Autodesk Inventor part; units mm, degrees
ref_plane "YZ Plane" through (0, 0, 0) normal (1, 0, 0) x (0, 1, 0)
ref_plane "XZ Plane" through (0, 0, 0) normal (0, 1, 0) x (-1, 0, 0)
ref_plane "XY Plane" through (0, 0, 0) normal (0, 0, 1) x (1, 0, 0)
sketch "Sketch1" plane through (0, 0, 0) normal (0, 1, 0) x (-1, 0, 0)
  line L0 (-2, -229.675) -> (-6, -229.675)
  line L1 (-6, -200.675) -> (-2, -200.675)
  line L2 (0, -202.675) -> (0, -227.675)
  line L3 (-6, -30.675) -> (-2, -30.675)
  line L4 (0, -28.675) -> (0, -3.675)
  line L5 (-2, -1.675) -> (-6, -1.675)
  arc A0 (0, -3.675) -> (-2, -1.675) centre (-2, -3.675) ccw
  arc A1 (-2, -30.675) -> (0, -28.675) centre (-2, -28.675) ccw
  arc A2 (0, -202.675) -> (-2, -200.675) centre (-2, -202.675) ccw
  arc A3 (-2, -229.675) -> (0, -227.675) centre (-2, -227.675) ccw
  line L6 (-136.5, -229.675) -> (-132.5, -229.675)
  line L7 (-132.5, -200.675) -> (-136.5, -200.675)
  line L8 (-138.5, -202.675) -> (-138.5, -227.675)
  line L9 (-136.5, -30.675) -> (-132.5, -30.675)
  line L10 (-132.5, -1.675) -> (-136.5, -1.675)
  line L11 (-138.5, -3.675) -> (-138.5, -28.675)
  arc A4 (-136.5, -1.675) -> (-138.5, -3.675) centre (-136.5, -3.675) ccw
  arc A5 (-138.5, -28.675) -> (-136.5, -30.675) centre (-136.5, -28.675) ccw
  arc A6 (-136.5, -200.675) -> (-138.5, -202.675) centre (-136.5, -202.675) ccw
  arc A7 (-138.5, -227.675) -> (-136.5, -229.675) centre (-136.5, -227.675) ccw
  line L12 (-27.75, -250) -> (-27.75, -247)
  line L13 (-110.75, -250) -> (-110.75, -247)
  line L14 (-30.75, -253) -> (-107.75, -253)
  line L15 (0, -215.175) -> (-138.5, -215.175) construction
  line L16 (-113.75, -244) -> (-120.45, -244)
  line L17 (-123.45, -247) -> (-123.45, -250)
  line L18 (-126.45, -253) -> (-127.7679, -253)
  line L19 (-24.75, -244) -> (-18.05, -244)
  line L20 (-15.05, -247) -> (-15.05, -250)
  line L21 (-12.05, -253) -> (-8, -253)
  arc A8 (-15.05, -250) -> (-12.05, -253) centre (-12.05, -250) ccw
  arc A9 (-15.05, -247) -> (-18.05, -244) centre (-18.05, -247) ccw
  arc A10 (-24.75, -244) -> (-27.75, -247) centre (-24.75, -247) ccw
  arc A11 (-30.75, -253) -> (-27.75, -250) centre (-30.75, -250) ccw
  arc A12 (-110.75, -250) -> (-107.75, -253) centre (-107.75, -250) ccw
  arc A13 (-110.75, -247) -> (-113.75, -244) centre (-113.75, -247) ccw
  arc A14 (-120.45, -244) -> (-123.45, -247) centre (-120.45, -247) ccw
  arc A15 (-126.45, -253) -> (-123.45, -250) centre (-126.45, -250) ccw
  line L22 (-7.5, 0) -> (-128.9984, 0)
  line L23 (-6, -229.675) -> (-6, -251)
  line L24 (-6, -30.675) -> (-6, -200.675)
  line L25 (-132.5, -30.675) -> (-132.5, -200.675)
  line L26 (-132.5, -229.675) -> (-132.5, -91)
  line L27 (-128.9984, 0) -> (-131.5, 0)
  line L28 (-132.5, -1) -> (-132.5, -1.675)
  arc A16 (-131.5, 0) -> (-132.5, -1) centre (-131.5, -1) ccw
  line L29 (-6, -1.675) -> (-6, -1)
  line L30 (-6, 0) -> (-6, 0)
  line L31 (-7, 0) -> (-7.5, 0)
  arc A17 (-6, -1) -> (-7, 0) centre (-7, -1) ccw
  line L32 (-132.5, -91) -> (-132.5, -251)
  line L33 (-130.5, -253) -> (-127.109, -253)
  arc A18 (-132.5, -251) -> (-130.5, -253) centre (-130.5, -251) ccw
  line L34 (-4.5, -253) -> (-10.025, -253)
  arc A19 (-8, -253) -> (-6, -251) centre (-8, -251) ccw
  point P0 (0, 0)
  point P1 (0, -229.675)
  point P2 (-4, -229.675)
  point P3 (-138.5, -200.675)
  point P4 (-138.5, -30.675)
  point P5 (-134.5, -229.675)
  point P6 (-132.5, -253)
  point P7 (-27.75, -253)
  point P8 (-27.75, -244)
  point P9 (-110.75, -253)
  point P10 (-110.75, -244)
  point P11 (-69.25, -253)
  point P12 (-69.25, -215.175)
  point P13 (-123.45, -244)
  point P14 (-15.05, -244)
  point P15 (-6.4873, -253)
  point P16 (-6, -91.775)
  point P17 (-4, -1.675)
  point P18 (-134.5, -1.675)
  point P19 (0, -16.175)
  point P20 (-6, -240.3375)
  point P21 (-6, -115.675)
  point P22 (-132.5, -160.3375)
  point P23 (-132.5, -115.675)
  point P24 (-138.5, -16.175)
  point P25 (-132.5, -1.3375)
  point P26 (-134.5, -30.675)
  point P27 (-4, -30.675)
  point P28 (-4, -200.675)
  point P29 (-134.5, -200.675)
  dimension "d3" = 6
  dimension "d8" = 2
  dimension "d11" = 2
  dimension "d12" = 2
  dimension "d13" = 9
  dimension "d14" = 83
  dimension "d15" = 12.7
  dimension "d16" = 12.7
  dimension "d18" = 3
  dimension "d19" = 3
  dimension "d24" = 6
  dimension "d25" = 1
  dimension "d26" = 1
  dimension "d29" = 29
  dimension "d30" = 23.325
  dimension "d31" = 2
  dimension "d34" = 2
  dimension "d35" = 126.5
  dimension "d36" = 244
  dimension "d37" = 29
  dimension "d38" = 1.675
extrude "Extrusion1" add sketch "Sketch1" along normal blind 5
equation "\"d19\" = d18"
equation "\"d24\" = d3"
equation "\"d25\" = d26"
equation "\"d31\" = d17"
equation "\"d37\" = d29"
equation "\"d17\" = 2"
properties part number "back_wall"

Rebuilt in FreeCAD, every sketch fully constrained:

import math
import FreeCAD as App
import Part
import Sketcher
from FreeCAD import Vector
Q = App.Units.Quantity

doc = App.newDocument("Part")
body = doc.addObject("PartDesign::Body", "Body")

# Sketch on XZ plane
sketch1 = body.newObject("Sketcher::SketchObject", "Sketch")
sketch1.AttachmentSupport = (doc.getObject("XZ_Plane"), [""])
sketch1.MapMode = "FlatFace"
sketch1.addGeometry([
    Part.LineSegment(Vector(6, -229.7, 0), Vector(2, -229.7, 0)),  # 0
    Part.ArcOfCircle(Part.Circle(Vector(2, -227.7, 0), Vector(0, 0, 1), 2), math.radians(180), math.radians(270)),  # 1
    Part.LineSegment(Vector(0, -227.7, 0), Vector(0, -202.7, 0)),  # 2
    Part.ArcOfCircle(Part.Circle(Vector(2, -202.7, 0), Vector(0, 0, 1), 2), math.radians(90), math.radians(180)),  # 3
    Part.LineSegment(Vector(2, -200.7, 0), Vector(6, -200.7, 0)),  # 4
    Part.LineSegment(Vector(6, -200.7, 0), Vector(6, -30.7, 0)),  # 5
    Part.LineSegment(Vector(6, -30.7, 0), Vector(2, -30.7, 0)),  # 6
    Part.ArcOfCircle(Part.Circle(Vector(2, -28.7, 0), Vector(0, 0, 1), 2), math.radians(180), math.radians(270)),  # 7
    Part.LineSegment(Vector(0, -28.7, 0), Vector(0, -3.7, 0)),  # 8
    Part.ArcOfCircle(Part.Circle(Vector(2, -3.7, 0), Vector(0, 0, 1), 2), math.radians(90), math.radians(180)),  # 9
    Part.LineSegment(Vector(2, -1.7, 0), Vector(6, -1.7, 0)),  # 10
    Part.LineSegment(Vector(6, -1.7, 0), Vector(6, -1, 0)),  # 11
    Part.ArcOfCircle(Part.Circle(Vector(7, -1, 0), Vector(0, 0, 1), 1), math.radians(90), math.radians(180)),  # 12
    Part.LineSegment(Vector(7, 0, 0), Vector(131.5, 0, 0)),  # 13
    Part.ArcOfCircle(Part.Circle(Vector(131.5, -1, 0), Vector(0, 0, 1), 1), math.radians(0), math.radians(90)),  # 14
    Part.LineSegment(Vector(132.5, -1, 0), Vector(132.5, -1.7, 0)),  # 15
    Part.LineSegment(Vector(132.5, -1.7, 0), Vector(136.5, -1.7, 0)),  # 16
    Part.ArcOfCircle(Part.Circle(Vector(136.5, -3.7, 0), Vector(0, 0, 1), 2), math.radians(0), math.radians(90)),  # 17
    Part.LineSegment(Vector(138.5, -3.7, 0), Vector(138.5, -28.7, 0)),  # 18
    Part.ArcOfCircle(Part.Circle(Vector(136.5, -28.7, 0), Vector(0, 0, 1), 2), math.radians(-90), math.radians(0)),  # 19
    Part.LineSegment(Vector(136.5, -30.7, 0), Vector(132.5, -30.7, 0)),  # 20
    Part.LineSegment(Vector(132.5, -30.7, 0), Vector(132.5, -200.7, 0)),  # 21
    Part.LineSegment(Vector(132.5, -200.7, 0), Vector(136.5, -200.7, 0)),  # 22
    Part.ArcOfCircle(Part.Circle(Vector(136.5, -202.7, 0), Vector(0, 0, 1), 2), math.radians(0), math.radians(90)),  # 23
    Part.LineSegment(Vector(138.5, -202.7, 0), Vector(138.5, -227.7, 0)),  # 24
    Part.ArcOfCircle(Part.Circle(Vector(136.5, -227.7, 0), Vector(0, 0, 1), 2), math.radians(-90), math.radians(0)),  # 25
    Part.LineSegment(Vector(136.5, -229.7, 0), Vector(132.5, -229.7, 0)),  # 26
    Part.LineSegment(Vector(132.5, -229.7, 0), Vector(132.5, -251, 0)),  # 27
    Part.ArcOfCircle(Part.Circle(Vector(130.5, -251, 0), Vector(0, 0, 1), 2), math.radians(-90), math.radians(0)),  # 28
    Part.LineSegment(Vector(130.5, -253, 0), Vector(126.5, -253, 0)),  # 29
    Part.ArcOfCircle(Part.Circle(Vector(126.5, -250, 0), Vector(0, 0, 1), 3), math.radians(180), math.radians(270)),  # 30
    Part.LineSegment(Vector(123.5, -250, 0), Vector(123.5, -247, 0)),  # 31
    Part.ArcOfCircle(Part.Circle(Vector(120.5, -247, 0), Vector(0, 0, 1), 3), math.radians(0), math.radians(90)),  # 32
    Part.LineSegment(Vector(120.5, -244, 0), Vector(113.8, -244, 0)),  # 33
    Part.ArcOfCircle(Part.Circle(Vector(113.8, -247, 0), Vector(0, 0, 1), 3), math.radians(90), math.radians(180)),  # 34
    Part.LineSegment(Vector(110.8, -247, 0), Vector(110.8, -250, 0)),  # 35
    Part.ArcOfCircle(Part.Circle(Vector(107.8, -250, 0), Vector(0, 0, 1), 3), math.radians(-90), math.radians(0)),  # 36
    Part.LineSegment(Vector(107.8, -253, 0), Vector(30.8, -253, 0)),  # 37
    Part.ArcOfCircle(Part.Circle(Vector(30.8, -250, 0), Vector(0, 0, 1), 3), math.radians(180), math.radians(270)),  # 38
    Part.LineSegment(Vector(27.8, -250, 0), Vector(27.8, -247, 0)),  # 39
    Part.ArcOfCircle(Part.Circle(Vector(24.8, -247, 0), Vector(0, 0, 1), 3), math.radians(0), math.radians(90)),  # 40
    Part.LineSegment(Vector(24.8, -244, 0), Vector(18.1, -244, 0)),  # 41
    Part.ArcOfCircle(Part.Circle(Vector(18.1, -247, 0), Vector(0, 0, 1), 3), math.radians(90), math.radians(180)),  # 42
    Part.LineSegment(Vector(15.1, -247, 0), Vector(15.1, -250, 0)),  # 43
    Part.ArcOfCircle(Part.Circle(Vector(12.1, -250, 0), Vector(0, 0, 1), 3), math.radians(-90), math.radians(0)),  # 44
    Part.LineSegment(Vector(12.1, -253, 0), Vector(8, -253, 0)),  # 45
    Part.ArcOfCircle(Part.Circle(Vector(8, -251, 0), Vector(0, 0, 1), 2), math.radians(180), math.radians(270)),  # 46
    Part.LineSegment(Vector(6, -251, 0), Vector(6, -229.7, 0)),  # 47
], False)
sketch1.addConstraint([
    Sketcher.Constraint("Tangent", 0, 2, 1, 2),
    Sketcher.Constraint("Tangent", 1, 1, 2, 1),
    Sketcher.Constraint("Tangent", 2, 2, 3, 2),
    Sketcher.Constraint("Tangent", 3, 1, 4, 1),
    Sketcher.Constraint("Coincident", 4, 2, 5, 1),
    Sketcher.Constraint("Coincident", 5, 2, 6, 1),
    Sketcher.Constraint("Tangent", 6, 2, 7, 2),
    Sketcher.Constraint("Tangent", 7, 1, 8, 1),
    Sketcher.Constraint("Tangent", 8, 2, 9, 2),
    Sketcher.Constraint("Tangent", 9, 1, 10, 1),
    Sketcher.Constraint("Coincident", 10, 2, 11, 1),
    Sketcher.Constraint("Tangent", 11, 2, 12, 2),
    Sketcher.Constraint("Tangent", 12, 1, 13, 1),
    Sketcher.Constraint("Tangent", 13, 2, 14, 2),
    Sketcher.Constraint("Tangent", 14, 1, 15, 1),
    Sketcher.Constraint("Coincident", 15, 2, 16, 1),
    Sketcher.Constraint("Tangent", 16, 2, 17, 2),
    Sketcher.Constraint("Tangent", 17, 1, 18, 1),
    Sketcher.Constraint("Tangent", 18, 2, 19, 2),
    Sketcher.Constraint("Tangent", 19, 1, 20, 1),
    Sketcher.Constraint("Coincident", 20, 2, 21, 1),
    Sketcher.Constraint("Coincident", 21, 2, 22, 1),
    Sketcher.Constraint("Tangent", 22, 2, 23, 2),
    Sketcher.Constraint("Tangent", 23, 1, 24, 1),
    Sketcher.Constraint("Tangent", 24, 2, 25, 2),
    Sketcher.Constraint("Tangent", 25, 1, 26, 1),
    Sketcher.Constraint("Coincident", 26, 2, 27, 1),
    Sketcher.Constraint("Tangent", 27, 2, 28, 2),
    Sketcher.Constraint("Tangent", 28, 1, 29, 1),
    Sketcher.Constraint("Tangent", 29, 2, 30, 2),
    Sketcher.Constraint("Tangent", 30, 1, 31, 1),
    Sketcher.Constraint("Tangent", 31, 2, 32, 1),
    Sketcher.Constraint("Tangent", 32, 2, 33, 1),
    Sketcher.Constraint("Tangent", 33, 2, 34, 1),
    Sketcher.Constraint("Tangent", 34, 2, 35, 1),
    Sketcher.Constraint("Tangent", 35, 2, 36, 2),
    Sketcher.Constraint("Tangent", 36, 1, 37, 1),
    Sketcher.Constraint("Tangent", 37, 2, 38, 2),
    Sketcher.Constraint("Tangent", 38, 1, 39, 1),
    Sketcher.Constraint("Tangent", 39, 2, 40, 1),
    Sketcher.Constraint("Tangent", 40, 2, 41, 1),
    Sketcher.Constraint("Tangent", 41, 2, 42, 1),
    Sketcher.Constraint("Tangent", 42, 2, 43, 1),
    Sketcher.Constraint("Tangent", 43, 2, 44, 2),
    Sketcher.Constraint("Tangent", 44, 1, 45, 1),
    Sketcher.Constraint("Tangent", 45, 2, 46, 2),
    Sketcher.Constraint("Tangent", 46, 1, 47, 1),
    Sketcher.Constraint("Coincident", 47, 2, 0, 1),
    Sketcher.Constraint("Horizontal", 0),
    Sketcher.Constraint("Vertical", 2),
    Sketcher.Constraint("Horizontal", 4),
    Sketcher.Constraint("Vertical", 5),
    Sketcher.Constraint("Horizontal", 6),
    Sketcher.Constraint("Vertical", 8),
    Sketcher.Constraint("Horizontal", 10),
    Sketcher.Constraint("Vertical", 11),
    Sketcher.Constraint("Horizontal", 13),
    Sketcher.Constraint("Vertical", 15),
    Sketcher.Constraint("Horizontal", 16),
    Sketcher.Constraint("Vertical", 18),
    Sketcher.Constraint("Horizontal", 20),
    Sketcher.Constraint("Vertical", 21),
    Sketcher.Constraint("Horizontal", 22),
    Sketcher.Constraint("Vertical", 24),
    Sketcher.Constraint("Horizontal", 26),
    Sketcher.Constraint("Vertical", 27),
    Sketcher.Constraint("Horizontal", 29),
    Sketcher.Constraint("Vertical", 31),
    Sketcher.Constraint("Horizontal", 33),
    Sketcher.Constraint("Vertical", 35),
    Sketcher.Constraint("Horizontal", 37),
    Sketcher.Constraint("Vertical", 39),
    Sketcher.Constraint("Horizontal", 41),
    Sketcher.Constraint("Vertical", 43),
    Sketcher.Constraint("Horizontal", 45),
    Sketcher.Constraint("Vertical", 47),
    Sketcher.Constraint("Equal", 1, 3),
    Sketcher.Constraint("Equal", 3, 7),
    Sketcher.Constraint("Equal", 7, 9),
    Sketcher.Constraint("Equal", 12, 14),
    Sketcher.Constraint("Equal", 9, 17),
    Sketcher.Constraint("Equal", 17, 19),
    Sketcher.Constraint("Equal", 19, 23),
    Sketcher.Constraint("Equal", 23, 25),
    Sketcher.Constraint("Equal", 25, 28),
    Sketcher.Constraint("Equal", 30, 32),
    Sketcher.Constraint("Equal", 32, 34),
    Sketcher.Constraint("Equal", 34, 36),
    Sketcher.Constraint("Equal", 36, 38),
    Sketcher.Constraint("Equal", 38, 40),
    Sketcher.Constraint("Equal", 40, 42),
    Sketcher.Constraint("Equal", 42, 44),
    Sketcher.Constraint("Equal", 28, 46),
    Sketcher.Constraint("PointOnObject", 1, 1, -2),
    Sketcher.Constraint("PointOnObject", 7, 1, -2),
    Sketcher.Constraint("PointOnObject", 12, 1, -1),
    Sketcher.Constraint("Horizontal", 9, 3, 17, 3),
    Sketcher.Constraint("Horizontal", 7, 3, 19, 3),
    Sketcher.Constraint("Horizontal", 3, 3, 23, 3),
    Sketcher.Constraint("Horizontal", 1, 3, 25, 3),
    Sketcher.Constraint("Horizontal", 30, 3, 36, 3),
    Sketcher.Constraint("Horizontal", 34, 3, 40, 3),
    Sketcher.Constraint("Horizontal", 38, 3, 44, 3),
    Sketcher.Constraint("Vertical", 19, 3, 23, 3),
    Sketcher.Constraint("Vertical", 5, 2, 10, 2),
    Sketcher.Constraint("Vertical", 15, 2, 20, 2),
    Sketcher.Constraint("Vertical", 21, 2, 26, 2),
    Sketcher.Constraint("Vertical", 11, 2, 46, 1),
    Sketcher.Constraint("Equal", 10, 16),
    Sketcher.Constraint("Equal", 33, 41),
    Sketcher.Constraint("Equal", 29, 45),
    Sketcher.Constraint("Equal", 2, 8),
    Sketcher.Constraint("Radius", 1, Q("2 mm")),
    Sketcher.Constraint("Radius", 12, Q("1 mm")),
    Sketcher.Constraint("Radius", 30, Q("3 mm")),
    Sketcher.Constraint("DistanceY", 31, 1, 31, 2, Q("3 mm")),
    Sketcher.Constraint("DistanceX", -1, 1, 4, 2, Q("6 mm")),
    Sketcher.Constraint("DistanceY", 32, 2, -1, 1, Q("244 mm")),
    Sketcher.Constraint("DistanceX", 37, 2, 37, 1, Q("77 mm")),
    Sketcher.Constraint("DistanceY", 2, 1, 2, 2, Q("25 mm")),
    Sketcher.Constraint("DistanceY", 5, 1, 5, 2, Q("170 mm")),
    Sketcher.Constraint("DistanceX", 13, 1, 13, 2, Q("124.5 mm")),
    Sketcher.Constraint("DistanceX", 33, 2, 33, 1, Q("6.7 mm")),
    Sketcher.Constraint("DistanceY", 9, 1, -1, 1, Q("1.675 mm")),
])
pad1 = body.newObject("PartDesign::Pad", "Pad")
pad1.Profile = sketch1
pad1.Length = 5
pad1.Reversed = True

doc.recompute()
